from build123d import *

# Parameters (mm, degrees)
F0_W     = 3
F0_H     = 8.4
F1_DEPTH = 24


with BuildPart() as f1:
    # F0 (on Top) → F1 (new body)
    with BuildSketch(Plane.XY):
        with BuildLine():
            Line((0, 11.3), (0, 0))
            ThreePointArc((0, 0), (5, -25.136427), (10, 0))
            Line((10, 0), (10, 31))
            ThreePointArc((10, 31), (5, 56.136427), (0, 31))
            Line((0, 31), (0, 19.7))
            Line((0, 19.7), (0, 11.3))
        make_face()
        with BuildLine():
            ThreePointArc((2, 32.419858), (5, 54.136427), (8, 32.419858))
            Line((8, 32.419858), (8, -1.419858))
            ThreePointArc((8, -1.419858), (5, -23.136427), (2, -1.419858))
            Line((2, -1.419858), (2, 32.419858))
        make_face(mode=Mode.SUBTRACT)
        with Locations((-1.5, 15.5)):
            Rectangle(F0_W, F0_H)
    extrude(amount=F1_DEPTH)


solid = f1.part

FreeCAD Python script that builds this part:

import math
import FreeCAD as App
import Part
import Sketcher
from FreeCAD import Vector
Q = App.Units.Quantity

doc = App.newDocument("Part")
params = doc.addObject("Spreadsheet::Sheet", "Params")
for row, (alias, value) in enumerate([
    ("sketch1_width", "3 mm"),
    ("sketch1_height", "31 mm"),
    ("sketch1_height2", "11.3 mm"),
    ("pad1_length", "24 mm"),
], start=1):
    params.set(f"A{row}", alias)
    params.set(f"B{row}", "=" + value)
    params.setAlias(f"B{row}", alias)

body = doc.addObject("PartDesign::Body", "Body")

# Sketch on XY plane
sketch1 = doc.addObject("Sketcher::SketchObject", "Sketch")
body.addObject(sketch1)
sketch1.AttachmentSupport = (doc.XY_Plane, [""])
sketch1.MapMode = "FlatFace"
sketch1.addGeometry(Part.ArcOfCircle(Part.Circle(Vector(5, -12.070927, 0), Vector(0, 0, 1), 13.0655), math.radians(112.500236), math.radians(427.499764)), False)
sketch1.addGeometry(Part.LineSegment(Vector(10, 0, 0), Vector(10, 31, 0)), False)
sketch1.addGeometry(Part.ArcOfCircle(Part.Circle(Vector(5, 43.070927, 0), Vector(0, 0, 1), 13.0655), math.radians(-67.499764), math.radians(247.499764)), False)
sketch1.addGeometry(Part.LineSegment(Vector(0, 31, 0), Vector(0, 19.7, 0)), False)
sketch1.addGeometry(Part.LineSegment(Vector(0, 19.7, 0), Vector(-3, 19.7, 0)), False)
sketch1.addGeometry(Part.LineSegment(Vector(-3, 19.7, 0), Vector(-3, 11.3, 0)), False)
sketch1.addGeometry(Part.LineSegment(Vector(-3, 11.3, 0), Vector(0, 11.3, 0)), False)
sketch1.addGeometry(Part.LineSegment(Vector(0, 11.3, 0), Vector(0, 0, 0)), False)
sketch1.addGeometry(Part.LineSegment(Vector(2, -1.419858, 0), Vector(2, 32.419858, 0)), False)
sketch1.addGeometry(Part.ArcOfCircle(Part.Circle(Vector(5, 43.070927, 0), Vector(0, 0, 1), 11.0655), math.radians(-74.269497), math.radians(254.269497)), False)
sketch1.addGeometry(Part.LineSegment(Vector(8, 32.419858, 0), Vector(8, -1.419858, 0)), False)
sketch1.addGeometry(Part.ArcOfCircle(Part.Circle(Vector(5, -12.070927, 0), Vector(0, 0, 1), 11.0655), math.radians(105.730503), math.radians(434.269497)), False)
sketch1.addConstraint(Sketcher.Constraint("Coincident", 0, 2, 1, 1))
sketch1.addConstraint(Sketcher.Constraint("Coincident", 1, 2, 2, 1))
sketch1.addConstraint(Sketcher.Constraint("Coincident", 2, 2, 3, 1))
sketch1.addConstraint(Sketcher.Constraint("Coincident", 3, 2, 4, 1))
sketch1.addConstraint(Sketcher.Constraint("Coincident", 4, 2, 5, 1))
sketch1.addConstraint(Sketcher.Constraint("Coincident", 5, 2, 6, 1))
sketch1.addConstraint(Sketcher.Constraint("Coincident", 6, 2, 7, 1))
sketch1.addConstraint(Sketcher.Constraint("Coincident", 7, 2, 0, 1))
sketch1.addConstraint(Sketcher.Constraint("Coincident", 8, 2, 9, 2))
sketch1.addConstraint(Sketcher.Constraint("Coincident", 9, 1, 10, 1))
sketch1.addConstraint(Sketcher.Constraint("Coincident", 10, 2, 11, 2))
sketch1.addConstraint(Sketcher.Constraint("Coincident", 11, 1, 8, 1))
sketch1.addConstraint(Sketcher.Constraint("Vertical", 1))
sketch1.addConstraint(Sketcher.Constraint("Vertical", 3))
sketch1.addConstraint(Sketcher.Constraint("Horizontal", 4))
sketch1.addConstraint(Sketcher.Constraint("Vertical", 5))
sketch1.addConstraint(Sketcher.Constraint("Horizontal", 6))
sketch1.addConstraint(Sketcher.Constraint("Vertical", 7))
sketch1.addConstraint(Sketcher.Constraint("Vertical", 8))
sketch1.addConstraint(Sketcher.Constraint("Vertical", 10))
sketch1.addConstraint(Sketcher.Constraint("Coincident", 7, 2, -1, 1))
sketch1.addConstraint(Sketcher.Constraint("Coincident", 9, 3, 2, 3))
sketch1.addConstraint(Sketcher.Constraint("Coincident", 11, 3, 0, 3))
sketch1.addConstraint(Sketcher.Constraint("Equal", 0, 2))
sketch1.addConstraint(Sketcher.Constraint("Equal", 9, 11))
sketch1.addConstraint(Sketcher.Constraint("PointOnObject", 0, 2, -1))
sketch1.addConstraint(Sketcher.Constraint("PointOnObject", 2, 2, -2))
sketch1.addConstraint(Sketcher.Constraint("Horizontal", 1, 2, 2, 2))
sketch1.addConstraint(Sketcher.Constraint("Horizontal", 8, 2, 9, 1))
sketch1.addConstraint(Sketcher.Constraint("Equal", 3, 7))
sketch1.addConstraint(Sketcher.Constraint("DistanceX", 4, 2, 4, 1, Q("3 mm")))
sketch1.addConstraint(Sketcher.Constraint("DistanceY", 1, 1, 1, 2, Q("31 mm")))
sketch1.addConstraint(Sketcher.Constraint("DistanceY", 3, 2, 3, 1, Q("11.3 mm")))
sketch1.addConstraint(Sketcher.Constraint("DistanceX", -1, 1, 0, 3, Q("5 mm")))
sketch1.addConstraint(Sketcher.Constraint("DistanceX", -1, 1, 8, 2, Q("2 mm")))
sketch1.addConstraint(Sketcher.Constraint("Radius", 0, Q("13.0655 mm")))
sketch1.addConstraint(Sketcher.Constraint("Radius", 9, Q("11.0655 mm")))
sketch1.setExpression("Constraints[30]", "Params.sketch1_width")
sketch1.setExpression("Constraints[31]", "Params.sketch1_height")
sketch1.setExpression("Constraints[32]", "Params.sketch1_height2")
pad1 = doc.addObject("PartDesign::Pad", "Pad")
body.addObject(pad1)
pad1.Profile = sketch1
pad1.setExpression("Length", "Params.pad1_length")

doc.recompute()
